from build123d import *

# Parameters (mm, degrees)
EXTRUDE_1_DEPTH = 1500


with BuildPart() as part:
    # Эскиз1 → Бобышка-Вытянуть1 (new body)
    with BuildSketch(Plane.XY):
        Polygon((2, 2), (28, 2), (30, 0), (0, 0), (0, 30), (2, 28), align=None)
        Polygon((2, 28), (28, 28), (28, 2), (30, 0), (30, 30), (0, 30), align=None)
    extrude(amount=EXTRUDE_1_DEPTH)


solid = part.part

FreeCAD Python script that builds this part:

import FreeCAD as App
import Part
import Sketcher
Q = App.Units.Quantity

doc = App.newDocument("Part")
params = doc.addObject("Spreadsheet::Sheet", "Params")
for row, (alias, value) in enumerate([
    ("sketch1_width", "30 mm"),
    ("sketch1_width2", "26 mm"),
    ("pad1_length", "1500 mm"),
], start=1):
    params.set(f"A{row}", alias)
    params.set(f"B{row}", "=" + value)
    params.setAlias(f"B{row}", alias)

body = doc.addObject("PartDesign::Body", "Body")

sketch1 = body.newObject("Sketcher::SketchObject", "Sketch")
sketch1.AttachmentSupport = (doc.getObject("XY_Plane"), [""])
sketch1.MapMode = "FlatFace"
sketch1.addGeometry([
    Part.LineSegment(App.Vector(0, 0, 0), App.Vector(30, 0, 0)),
    Part.LineSegment(App.Vector(30, 0, 0), App.Vector(30, 30, 0)),
    Part.LineSegment(App.Vector(30, 30, 0), App.Vector(0, 30, 0)),
    Part.LineSegment(App.Vector(0, 30, 0), App.Vector(0, 0, 0)),
    Part.LineSegment(App.Vector(28, 2, 0), App.Vector(2, 2, 0)),
    Part.LineSegment(App.Vector(2, 2, 0), App.Vector(2, 28, 0)),
    Part.LineSegment(App.Vector(2, 28, 0), App.Vector(28, 28, 0)),
    Part.LineSegment(App.Vector(28, 28, 0), App.Vector(28, 2, 0)),
], False)
sketch1.addConstraint([
    Sketcher.Constraint("Coincident", 0, 2, 1, 1),
    Sketcher.Constraint("Coincident", 1, 2, 2, 1),
    Sketcher.Constraint("Coincident", 2, 2, 3, 1),
    Sketcher.Constraint("Coincident", 3, 2, 0, 1),
    Sketcher.Constraint("Coincident", 4, 2, 5, 1),
    Sketcher.Constraint("Coincident", 5, 2, 6, 1),
    Sketcher.Constraint("Coincident", 6, 2, 7, 1),
    Sketcher.Constraint("Coincident", 7, 2, 4, 1),
    Sketcher.Constraint("Horizontal", 0),
    Sketcher.Constraint("Vertical", 1),
    Sketcher.Constraint("Horizontal", 2),
    Sketcher.Constraint("Vertical", 3),
    Sketcher.Constraint("Horizontal", 4),
    Sketcher.Constraint("Vertical", 5),
    Sketcher.Constraint("Horizontal", 6),
    Sketcher.Constraint("Vertical", 7),
    Sketcher.Constraint("Coincident", 3, 2, -1, 1),
    Sketcher.Constraint("Equal", 2, 1),
    Sketcher.Constraint("Equal", 6, 5),
    Sketcher.Constraint("DistanceX", 0, 1, 0, 2, Q("30 mm")),
    Sketcher.Constraint("DistanceX", 4, 2, 4, 1, Q("26 mm")),
    Sketcher.Constraint("DistanceX", -1, 1, 4, 2, Q("2 mm")),
    Sketcher.Constraint("DistanceY", -1, 1, 4, 2, Q("2 mm")),
])
sketch1.setExpression("Constraints[19]", "Params.sketch1_width")
sketch1.setExpression("Constraints[20]", "Params.sketch1_width2")
pad1 = body.newObject("PartDesign::Pad", "Pad")
pad1.Profile = sketch1
pad1.setExpression("Length", "Params.pad1_length")

doc.recompute()
